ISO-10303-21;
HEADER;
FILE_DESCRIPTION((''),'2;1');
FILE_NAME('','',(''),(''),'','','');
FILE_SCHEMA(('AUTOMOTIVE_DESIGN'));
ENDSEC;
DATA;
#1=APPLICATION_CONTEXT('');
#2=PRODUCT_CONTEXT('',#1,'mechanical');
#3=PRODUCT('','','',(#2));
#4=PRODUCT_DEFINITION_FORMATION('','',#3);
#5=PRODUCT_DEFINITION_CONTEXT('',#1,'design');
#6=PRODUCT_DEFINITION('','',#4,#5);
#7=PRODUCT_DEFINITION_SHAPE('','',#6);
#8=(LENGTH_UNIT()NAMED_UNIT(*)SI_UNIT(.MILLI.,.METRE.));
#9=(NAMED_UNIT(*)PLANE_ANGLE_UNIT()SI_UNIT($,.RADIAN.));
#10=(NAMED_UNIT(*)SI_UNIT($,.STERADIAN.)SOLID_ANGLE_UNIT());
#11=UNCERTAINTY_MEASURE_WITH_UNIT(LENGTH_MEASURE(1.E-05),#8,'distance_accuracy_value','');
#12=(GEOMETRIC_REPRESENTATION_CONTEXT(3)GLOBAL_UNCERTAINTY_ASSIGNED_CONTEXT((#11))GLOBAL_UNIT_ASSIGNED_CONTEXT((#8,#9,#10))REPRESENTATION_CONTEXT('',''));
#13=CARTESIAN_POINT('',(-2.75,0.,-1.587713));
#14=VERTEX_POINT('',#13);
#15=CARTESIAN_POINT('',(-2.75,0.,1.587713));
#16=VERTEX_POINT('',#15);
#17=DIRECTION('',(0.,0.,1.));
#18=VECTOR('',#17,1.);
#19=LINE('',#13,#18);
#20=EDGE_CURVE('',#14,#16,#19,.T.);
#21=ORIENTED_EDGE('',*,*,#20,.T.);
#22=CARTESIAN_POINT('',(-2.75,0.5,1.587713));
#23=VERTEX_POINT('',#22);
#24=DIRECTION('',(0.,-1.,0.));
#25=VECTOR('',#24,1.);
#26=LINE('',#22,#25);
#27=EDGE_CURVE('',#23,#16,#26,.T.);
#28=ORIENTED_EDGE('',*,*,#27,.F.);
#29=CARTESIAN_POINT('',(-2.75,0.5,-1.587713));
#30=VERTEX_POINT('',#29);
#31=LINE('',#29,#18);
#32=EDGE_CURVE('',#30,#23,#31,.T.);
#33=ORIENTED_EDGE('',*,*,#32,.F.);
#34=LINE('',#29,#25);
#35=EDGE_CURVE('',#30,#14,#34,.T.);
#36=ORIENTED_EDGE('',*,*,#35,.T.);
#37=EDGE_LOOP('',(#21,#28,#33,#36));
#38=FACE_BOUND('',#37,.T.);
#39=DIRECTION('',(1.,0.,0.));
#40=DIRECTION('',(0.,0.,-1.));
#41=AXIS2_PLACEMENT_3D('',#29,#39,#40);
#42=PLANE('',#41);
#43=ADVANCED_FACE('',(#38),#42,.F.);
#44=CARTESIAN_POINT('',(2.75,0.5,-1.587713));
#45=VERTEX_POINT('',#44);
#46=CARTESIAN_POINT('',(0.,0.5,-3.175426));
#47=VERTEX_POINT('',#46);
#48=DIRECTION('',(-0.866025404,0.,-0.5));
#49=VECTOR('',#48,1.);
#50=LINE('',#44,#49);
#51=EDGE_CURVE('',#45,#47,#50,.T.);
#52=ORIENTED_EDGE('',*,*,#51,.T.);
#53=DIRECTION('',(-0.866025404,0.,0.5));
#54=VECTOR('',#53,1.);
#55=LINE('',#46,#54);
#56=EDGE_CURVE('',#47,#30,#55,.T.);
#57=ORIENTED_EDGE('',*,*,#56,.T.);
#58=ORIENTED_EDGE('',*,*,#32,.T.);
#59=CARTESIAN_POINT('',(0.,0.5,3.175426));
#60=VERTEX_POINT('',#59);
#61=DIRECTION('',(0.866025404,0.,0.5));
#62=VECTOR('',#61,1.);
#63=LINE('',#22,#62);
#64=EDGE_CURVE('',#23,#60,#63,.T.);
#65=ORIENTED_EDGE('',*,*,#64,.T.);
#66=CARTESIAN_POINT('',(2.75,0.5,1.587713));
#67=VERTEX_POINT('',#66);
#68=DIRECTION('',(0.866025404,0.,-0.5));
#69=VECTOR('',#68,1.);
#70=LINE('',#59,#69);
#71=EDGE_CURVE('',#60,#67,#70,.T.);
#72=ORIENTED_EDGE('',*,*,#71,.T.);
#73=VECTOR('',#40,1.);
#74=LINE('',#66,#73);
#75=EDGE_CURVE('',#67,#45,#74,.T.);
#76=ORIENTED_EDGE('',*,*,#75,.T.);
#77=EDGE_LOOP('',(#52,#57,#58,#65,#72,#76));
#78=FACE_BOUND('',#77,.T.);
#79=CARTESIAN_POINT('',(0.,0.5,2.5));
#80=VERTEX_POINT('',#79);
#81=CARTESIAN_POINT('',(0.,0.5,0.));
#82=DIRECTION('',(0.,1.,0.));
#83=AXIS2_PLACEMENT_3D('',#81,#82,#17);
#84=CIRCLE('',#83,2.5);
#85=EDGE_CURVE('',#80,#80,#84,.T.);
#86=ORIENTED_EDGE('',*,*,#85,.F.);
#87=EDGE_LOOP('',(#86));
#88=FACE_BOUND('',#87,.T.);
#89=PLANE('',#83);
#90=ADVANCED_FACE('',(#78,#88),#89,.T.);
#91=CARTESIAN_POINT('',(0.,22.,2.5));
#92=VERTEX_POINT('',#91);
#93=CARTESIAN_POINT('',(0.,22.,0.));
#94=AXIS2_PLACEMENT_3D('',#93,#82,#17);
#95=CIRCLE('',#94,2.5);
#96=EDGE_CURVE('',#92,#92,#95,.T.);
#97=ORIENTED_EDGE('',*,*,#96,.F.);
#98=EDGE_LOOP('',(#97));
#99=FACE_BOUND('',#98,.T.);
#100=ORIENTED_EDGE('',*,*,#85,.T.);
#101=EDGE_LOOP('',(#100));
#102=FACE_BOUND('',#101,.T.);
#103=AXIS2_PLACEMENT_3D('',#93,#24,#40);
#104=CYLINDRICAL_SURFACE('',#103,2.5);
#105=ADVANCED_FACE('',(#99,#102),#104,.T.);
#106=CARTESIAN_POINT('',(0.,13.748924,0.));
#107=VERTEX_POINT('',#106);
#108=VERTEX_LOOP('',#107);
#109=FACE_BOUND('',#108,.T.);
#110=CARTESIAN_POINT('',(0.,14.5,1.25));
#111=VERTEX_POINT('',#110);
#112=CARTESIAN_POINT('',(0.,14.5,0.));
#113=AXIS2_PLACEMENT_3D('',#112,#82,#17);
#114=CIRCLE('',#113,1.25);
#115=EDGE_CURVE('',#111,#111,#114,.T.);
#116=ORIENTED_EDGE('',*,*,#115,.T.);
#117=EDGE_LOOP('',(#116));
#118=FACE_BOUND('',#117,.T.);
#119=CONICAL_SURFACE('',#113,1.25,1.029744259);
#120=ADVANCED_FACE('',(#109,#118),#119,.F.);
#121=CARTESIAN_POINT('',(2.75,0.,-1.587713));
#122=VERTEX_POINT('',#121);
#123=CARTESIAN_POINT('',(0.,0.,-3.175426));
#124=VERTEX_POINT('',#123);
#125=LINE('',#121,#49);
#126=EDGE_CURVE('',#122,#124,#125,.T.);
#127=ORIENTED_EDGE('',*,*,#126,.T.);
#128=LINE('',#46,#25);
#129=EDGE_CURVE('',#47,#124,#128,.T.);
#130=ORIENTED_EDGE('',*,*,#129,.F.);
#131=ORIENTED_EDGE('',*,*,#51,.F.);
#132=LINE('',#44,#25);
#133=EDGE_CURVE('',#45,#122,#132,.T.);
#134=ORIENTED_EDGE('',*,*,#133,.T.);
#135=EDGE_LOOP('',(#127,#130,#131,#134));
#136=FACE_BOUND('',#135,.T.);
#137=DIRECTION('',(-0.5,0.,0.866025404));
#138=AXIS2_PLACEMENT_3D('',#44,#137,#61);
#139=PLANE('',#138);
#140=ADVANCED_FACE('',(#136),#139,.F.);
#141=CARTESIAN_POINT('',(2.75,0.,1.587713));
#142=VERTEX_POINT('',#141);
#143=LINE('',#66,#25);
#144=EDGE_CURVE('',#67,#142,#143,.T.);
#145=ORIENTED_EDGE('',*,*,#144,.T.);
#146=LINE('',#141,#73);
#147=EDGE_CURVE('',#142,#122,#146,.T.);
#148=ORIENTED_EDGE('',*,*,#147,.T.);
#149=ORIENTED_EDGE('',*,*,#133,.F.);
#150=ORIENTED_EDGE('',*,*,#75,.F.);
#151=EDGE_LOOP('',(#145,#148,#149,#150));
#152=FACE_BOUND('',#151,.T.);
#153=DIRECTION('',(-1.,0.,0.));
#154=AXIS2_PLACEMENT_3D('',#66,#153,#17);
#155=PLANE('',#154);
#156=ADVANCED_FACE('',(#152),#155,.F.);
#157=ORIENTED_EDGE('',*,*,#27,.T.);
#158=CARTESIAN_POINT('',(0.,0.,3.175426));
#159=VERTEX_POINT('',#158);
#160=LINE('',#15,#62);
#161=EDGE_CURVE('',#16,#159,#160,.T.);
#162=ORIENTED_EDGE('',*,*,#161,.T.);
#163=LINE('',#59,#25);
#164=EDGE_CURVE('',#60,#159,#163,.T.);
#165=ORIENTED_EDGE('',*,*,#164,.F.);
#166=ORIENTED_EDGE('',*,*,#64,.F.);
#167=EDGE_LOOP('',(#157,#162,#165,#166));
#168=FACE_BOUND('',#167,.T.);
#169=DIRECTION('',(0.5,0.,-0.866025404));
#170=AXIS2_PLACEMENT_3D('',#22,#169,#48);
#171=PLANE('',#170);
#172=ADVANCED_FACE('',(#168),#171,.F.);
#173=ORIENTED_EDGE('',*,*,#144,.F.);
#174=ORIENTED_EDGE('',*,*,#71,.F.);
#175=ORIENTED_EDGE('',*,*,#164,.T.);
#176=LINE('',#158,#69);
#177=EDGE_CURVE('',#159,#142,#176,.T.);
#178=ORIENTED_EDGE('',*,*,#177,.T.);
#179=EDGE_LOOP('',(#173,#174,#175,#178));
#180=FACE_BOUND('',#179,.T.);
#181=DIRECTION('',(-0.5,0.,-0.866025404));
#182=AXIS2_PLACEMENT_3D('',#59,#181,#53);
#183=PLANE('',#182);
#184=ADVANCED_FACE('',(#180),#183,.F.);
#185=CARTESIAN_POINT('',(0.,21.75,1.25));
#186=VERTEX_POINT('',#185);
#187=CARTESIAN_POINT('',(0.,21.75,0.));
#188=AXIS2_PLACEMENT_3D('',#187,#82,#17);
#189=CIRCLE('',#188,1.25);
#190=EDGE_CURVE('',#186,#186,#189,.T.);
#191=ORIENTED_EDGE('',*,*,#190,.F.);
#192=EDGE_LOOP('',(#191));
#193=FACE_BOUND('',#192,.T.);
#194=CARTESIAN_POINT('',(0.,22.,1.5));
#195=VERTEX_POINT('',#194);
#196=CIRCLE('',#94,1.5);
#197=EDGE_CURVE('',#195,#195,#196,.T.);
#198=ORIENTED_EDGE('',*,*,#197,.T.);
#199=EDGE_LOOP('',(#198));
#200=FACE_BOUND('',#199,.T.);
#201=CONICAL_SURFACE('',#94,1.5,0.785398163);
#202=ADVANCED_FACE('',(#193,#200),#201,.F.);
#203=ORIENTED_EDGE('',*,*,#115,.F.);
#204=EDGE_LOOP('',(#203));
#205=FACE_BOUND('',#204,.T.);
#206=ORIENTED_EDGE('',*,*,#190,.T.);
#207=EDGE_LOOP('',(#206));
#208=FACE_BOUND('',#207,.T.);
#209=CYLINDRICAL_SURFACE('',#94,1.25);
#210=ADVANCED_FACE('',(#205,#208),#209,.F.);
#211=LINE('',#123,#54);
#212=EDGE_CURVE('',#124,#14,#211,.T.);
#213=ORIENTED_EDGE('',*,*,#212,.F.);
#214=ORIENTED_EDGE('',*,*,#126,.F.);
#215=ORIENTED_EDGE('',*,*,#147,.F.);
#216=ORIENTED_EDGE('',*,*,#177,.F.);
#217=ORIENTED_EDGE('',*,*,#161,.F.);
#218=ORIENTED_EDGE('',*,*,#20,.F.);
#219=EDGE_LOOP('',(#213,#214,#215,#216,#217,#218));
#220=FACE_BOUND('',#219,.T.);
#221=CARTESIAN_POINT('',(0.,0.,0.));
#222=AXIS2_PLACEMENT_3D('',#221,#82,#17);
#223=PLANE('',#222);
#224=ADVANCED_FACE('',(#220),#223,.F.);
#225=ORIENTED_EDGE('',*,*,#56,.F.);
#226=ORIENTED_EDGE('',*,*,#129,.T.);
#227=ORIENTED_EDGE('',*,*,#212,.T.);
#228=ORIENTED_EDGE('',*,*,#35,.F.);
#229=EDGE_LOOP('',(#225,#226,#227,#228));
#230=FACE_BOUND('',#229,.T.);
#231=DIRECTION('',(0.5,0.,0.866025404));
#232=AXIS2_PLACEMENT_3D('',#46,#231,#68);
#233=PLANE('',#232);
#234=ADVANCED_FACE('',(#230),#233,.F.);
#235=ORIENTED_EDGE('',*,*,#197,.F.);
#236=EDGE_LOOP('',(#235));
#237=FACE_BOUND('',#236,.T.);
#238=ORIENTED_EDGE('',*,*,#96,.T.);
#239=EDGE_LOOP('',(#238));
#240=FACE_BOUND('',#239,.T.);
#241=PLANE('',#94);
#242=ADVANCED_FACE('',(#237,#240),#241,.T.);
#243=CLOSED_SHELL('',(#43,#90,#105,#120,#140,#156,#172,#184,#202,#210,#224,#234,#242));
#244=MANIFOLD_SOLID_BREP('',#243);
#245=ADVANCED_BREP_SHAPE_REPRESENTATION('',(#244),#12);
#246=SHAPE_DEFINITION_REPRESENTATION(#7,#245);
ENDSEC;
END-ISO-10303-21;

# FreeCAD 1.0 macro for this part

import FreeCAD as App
import Part
import Sketcher
from FreeCAD import Vector
Q = App.Units.Quantity


def add_polygon(sketch, points):
    """Adds a closed chain of lines whose ends are joined by coincident constraints."""
    first, n = sketch.GeometryCount, len(points)
    for a, b in zip(points, points[1:] + points[:1]):
        sketch.addGeometry(Part.LineSegment(App.Vector(*a, 0), App.Vector(*b, 0)), False)
    for i in range(n):
        sketch.addConstraint(Sketcher.Constraint("Coincident", first + i, 2, first + (i + 1) % n, 1))

doc = App.newDocument("Part")
body = doc.addObject("PartDesign::Body", "Body")

sketch1 = body.newObject("Sketcher::SketchObject", "Sketch")
sketch1.AttachmentSupport = (doc.getObject("XZ_Plane"), [""])
sketch1.MapMode = "FlatFace"
add_polygon(sketch1, [(0, 3.2), (2.8, 1.6), (2.8, -1.6), (0, -3.2), (-2.8, -1.6), (-2.8, 1.6)])
sketch1.addConstraint([
    Sketcher.Constraint("Vertical", 1),
    Sketcher.Constraint("Vertical", 4),
    Sketcher.Constraint("Symmetric", 0, 2, 3, 2, -1, 1),
    Sketcher.Constraint("Symmetric", 2, 2, 5, 2, -1, 1),
    Sketcher.Constraint("PointOnObject", 2, 2, -2),
    Sketcher.Constraint("Parallel", 2, 5),
    Sketcher.Constraint("Horizontal", 1, 2, 3, 2),
    Sketcher.Constraint("Angle", 0, Q("-30 deg")),
    Sketcher.Constraint("DistanceX", 3, 2, 1, 2, Q("5.5 mm")),
    Sketcher.Constraint("DistanceY", 1, 2, 1, 1, Q("3.175426 mm")),
])
pad1 = body.newObject("PartDesign::Pad", "Pad")
pad1.Profile = sketch1
pad1.Length = 0.5
pad1.Reversed = True

sketch2 = body.newObject("Sketcher::SketchObject", "Sketch001")
sketch2.AttachmentSupport = (doc.getObject("XZ_Plane"), [""])
sketch2.MapMode = "FlatFace"
sketch2.AttachmentOffset = App.Placement(Vector(0, 0, -0.5), App.Rotation())
sketch2.addGeometry(Part.Circle(Vector(0, 0, 0), Vector(0, 0, 1), 2.5), False)
sketch2.addConstraint([
    Sketcher.Constraint("Coincident", 0, 3, -1, 1),
    Sketcher.Constraint("Diameter", 0, Q("5 mm")),
])
pad2 = body.newObject("PartDesign::Pad", "Pad001")
pad2.Profile = sketch2
pad2.Length = 21.5
pad2.Reversed = True

sketch3 = body.newObject("Sketcher::SketchObject", "Sketch002")
sketch3.AttachmentSupport = (doc.getObject("XZ_Plane"), [""])
sketch3.MapMode = "FlatFace"
sketch3.AttachmentOffset = App.Placement(Vector(0, 0, -22), App.Rotation())
sketch3.addGeometry(Part.Circle(Vector(0, 0, 0), Vector(0, 0, 1), 1.2), False)
sketch3.addConstraint([
    Sketcher.Constraint("Coincident", 0, 3, -1, 1),
    Sketcher.Constraint("Diameter", 0, Q("2.5 mm")),
])
doc.recompute()
hole = body.newObject("PartDesign::Hole", "Hole")
hole.Profile = sketch3
hole.ThreadType = "None"
hole.Diameter = 2.5
hole.DepthType = "Dimension"
hole.Depth = 7.5
hole.DrillPoint = "Angled"
hole.DrillPointAngle = 118
hole.HoleCutType = "Countersink"
hole.HoleCutDiameter = 3
hole.HoleCutCountersinkAngle = 90
hole.Reversed = True

doc.recompute()
